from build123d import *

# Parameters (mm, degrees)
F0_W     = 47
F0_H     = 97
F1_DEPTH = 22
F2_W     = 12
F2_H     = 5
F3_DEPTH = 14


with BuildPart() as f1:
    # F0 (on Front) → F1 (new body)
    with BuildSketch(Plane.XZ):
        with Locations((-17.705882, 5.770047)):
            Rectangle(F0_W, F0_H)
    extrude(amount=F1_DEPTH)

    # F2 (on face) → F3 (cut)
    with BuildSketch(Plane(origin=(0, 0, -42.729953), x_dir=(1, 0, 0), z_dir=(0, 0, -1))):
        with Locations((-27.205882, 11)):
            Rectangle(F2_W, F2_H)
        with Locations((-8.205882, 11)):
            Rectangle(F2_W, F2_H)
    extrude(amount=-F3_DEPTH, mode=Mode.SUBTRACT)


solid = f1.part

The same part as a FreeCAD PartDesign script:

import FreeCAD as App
import Part
import Sketcher

V = App.Vector
Q = App.Units.Quantity

doc = App.newDocument("Part")
params = doc.addObject("Spreadsheet::Sheet", "Params")
for row, (alias, value) in enumerate([
    ("sketch1_width", "47 mm"),
    ("sketch1_height", "97 mm"),
    ("pad1_length", "22 mm"),
    ("sketch2_width", "12 mm"),
    ("sketch2_height", "5 mm"),
    ("pocket1_length", "14 mm"),
], start=1):
    params.set(f"A{row}", alias)
    params.set(f"B{row}", "=" + value)
    params.setAlias(f"B{row}", alias)

body = doc.addObject("PartDesign::Body", "Body")

sketch1 = body.newObject("Sketcher::SketchObject", "Sketch")
sketch1.AttachmentSupport = (doc.getObject("XZ_Plane"), [""])
sketch1.MapMode = "FlatFace"
sketch1.addGeometry([
    Part.LineSegment(V(-41, 54, 0), V(-41, -43, 0)),
    Part.LineSegment(V(-41, -43, 0), V(6, -43, 0)),
    Part.LineSegment(V(6, -43, 0), V(6, 54, 0)),
    Part.LineSegment(V(6, 54, 0), V(-41, 54, 0)),
], False)
sketch1.addConstraint([
    Sketcher.Constraint("Coincident", 0, 2, 1, 1),
    Sketcher.Constraint("Coincident", 1, 2, 2, 1),
    Sketcher.Constraint("Coincident", 2, 2, 3, 1),
    Sketcher.Constraint("Coincident", 3, 2, 0, 1),
    Sketcher.Constraint("Vertical", 0),
    Sketcher.Constraint("Horizontal", 1),
    Sketcher.Constraint("Vertical", 2),
    Sketcher.Constraint("Horizontal", 3),
    Sketcher.Constraint("DistanceX", 1, 1, 1, 2, Q("47 mm")),
    Sketcher.Constraint("DistanceY", 0, 2, 0, 1, Q("97 mm")),
    Sketcher.Constraint("DistanceX", 0, 2, -1, 1, Q("41.205882 mm")),
    Sketcher.Constraint("DistanceY", 0, 2, -1, 1, Q("42.729953 mm")),
])
sketch1.setExpression("Constraints[8]", "Params.sketch1_width")
sketch1.setExpression("Constraints[9]", "Params.sketch1_height")
pad1 = body.newObject("PartDesign::Pad", "Pad")
pad1.Profile = sketch1
pad1.setExpression("Length", "Params.pad1_length")

sketch2 = body.newObject("Sketcher::SketchObject", "Sketch001")
sketch2.AttachmentSupport = (doc.getObject("XY_Plane"), [""])
sketch2.MapMode = "FlatFace"
sketch2.AttachmentOffset = App.Placement(V(0, 0, -42.729953), App.Rotation())
sketch2.addGeometry([
    Part.LineSegment(V(-33, -14, 0), V(-33, -8, 0)),
    Part.LineSegment(V(-33, -8, 0), V(-21, -8, 0)),
    Part.LineSegment(V(-21, -8, 0), V(-21, -14, 0)),
    Part.LineSegment(V(-21, -14, 0), V(-33, -14, 0)),
    Part.LineSegment(V(-14, -14, 0), V(-14, -8, 0)),
    Part.LineSegment(V(-14, -8, 0), V(-2, -8, 0)),
    Part.LineSegment(V(-2, -8, 0), V(-2, -14, 0)),
    Part.LineSegment(V(-2, -14, 0), V(-14, -14, 0)),
], False)
sketch2.addConstraint([
    Sketcher.Constraint("Coincident", 0, 2, 1, 1),
    Sketcher.Constraint("Coincident", 1, 2, 2, 1),
    Sketcher.Constraint("Coincident", 2, 2, 3, 1),
    Sketcher.Constraint("Coincident", 3, 2, 0, 1),
    Sketcher.Constraint("Coincident", 4, 2, 5, 1),
    Sketcher.Constraint("Coincident", 5, 2, 6, 1),
    Sketcher.Constraint("Coincident", 6, 2, 7, 1),
    Sketcher.Constraint("Coincident", 7, 2, 4, 1),
    Sketcher.Constraint("Vertical", 0),
    Sketcher.Constraint("Horizontal", 1),
    Sketcher.Constraint("Vertical", 2),
    Sketcher.Constraint("Horizontal", 3),
    Sketcher.Constraint("Vertical", 4),
    Sketcher.Constraint("Horizontal", 5),
    Sketcher.Constraint("Vertical", 6),
    Sketcher.Constraint("Horizontal", 7),
    Sketcher.Constraint("Horizontal", 1, 2, 4, 2),
    Sketcher.Constraint("Horizontal", 3, 2, 6, 2),
    Sketcher.Constraint("Equal", 3, 5),
    Sketcher.Constraint("DistanceX", 1, 1, 1, 2, Q("12 mm")),
    Sketcher.Constraint("DistanceY", 0, 1, 0, 2, Q("5 mm")),
    Sketcher.Constraint("DistanceX", 1, 2, 4, 2, Q("7 mm")),
    Sketcher.Constraint("DistanceY", 0, 2, -1, 1, Q("8.5 mm")),
    Sketcher.Constraint("DistanceX", 1, 2, -1, 1, Q("21.205882 mm")),
])
sketch2.setExpression("Constraints[19]", "Params.sketch2_width")
sketch2.setExpression("Constraints[20]", "Params.sketch2_height")
pocket1 = body.newObject("PartDesign::Pocket", "Pocket")
pocket1.Profile = sketch2
pocket1.setExpression("Length", "Params.pocket1_length")
pocket1.Reversed = True

doc.recompute()
